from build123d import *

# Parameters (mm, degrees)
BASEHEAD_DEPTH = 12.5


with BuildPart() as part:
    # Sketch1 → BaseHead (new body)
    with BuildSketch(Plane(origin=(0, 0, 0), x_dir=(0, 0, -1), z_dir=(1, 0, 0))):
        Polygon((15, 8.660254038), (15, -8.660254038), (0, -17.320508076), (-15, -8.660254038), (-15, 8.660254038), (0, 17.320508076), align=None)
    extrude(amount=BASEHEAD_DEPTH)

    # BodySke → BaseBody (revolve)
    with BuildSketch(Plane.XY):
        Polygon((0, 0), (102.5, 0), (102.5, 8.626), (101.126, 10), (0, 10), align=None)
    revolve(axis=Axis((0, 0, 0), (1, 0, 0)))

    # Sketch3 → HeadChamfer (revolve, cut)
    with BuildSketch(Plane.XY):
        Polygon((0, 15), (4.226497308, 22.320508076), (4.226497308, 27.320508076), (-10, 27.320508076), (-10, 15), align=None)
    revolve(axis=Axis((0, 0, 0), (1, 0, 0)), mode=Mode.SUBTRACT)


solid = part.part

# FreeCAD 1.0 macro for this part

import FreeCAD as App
import Part
import Sketcher
from FreeCAD import Vector
Q = App.Units.Quantity


def add_polygon(sketch, points):
    """Adds a closed chain of lines whose ends are joined by coincident constraints."""
    first, n = sketch.GeometryCount, len(points)
    for a, b in zip(points, points[1:] + points[:1]):
        sketch.addGeometry(Part.LineSegment(App.Vector(*a, 0), App.Vector(*b, 0)), False)
    for i in range(n):
        sketch.addConstraint(Sketcher.Constraint("Coincident", first + i, 2, first + (i + 1) % n, 1))

doc = App.newDocument("Part")
body = doc.addObject("PartDesign::Body", "Body")

# Sketch on YZ plane
sketch1 = body.newObject("Sketcher::SketchObject", "Sketch")
sketch1.AttachmentSupport = (doc.getObject("YZ_Plane"), [""])
sketch1.MapMode = "FlatFace"
add_polygon(sketch1, [(-9, -15), (9, -15), (17, 0), (9, 15), (-9, 15), (-17, 0)])  # lines 0-5
sketch1.addConstraint(Sketcher.Constraint("Horizontal", 0))
sketch1.addConstraint(Sketcher.Constraint("Horizontal", 3))
sketch1.addConstraint(Sketcher.Constraint("Symmetric", 0, 2, 3, 2, -1, 1))
sketch1.addConstraint(Sketcher.Constraint("Symmetric", 1, 2, 4, 2, -1, 1))
sketch1.addConstraint(Sketcher.Constraint("PointOnObject", 1, 2, -1))
sketch1.addConstraint(Sketcher.Constraint("Parallel", 2, 5))
sketch1.addConstraint(Sketcher.Constraint("Vertical", 0, 2, 2, 2))
sketch1.addConstraint(Sketcher.Constraint("Angle", 1, Q("60 deg")))
sketch1.addConstraint(Sketcher.Constraint("DistanceY", 0, 2, -1, 1, 15.0))
sketch1.addConstraint(Sketcher.Constraint("DistanceX", 0, 1, 0, 2, 17.320508))
pad1 = body.newObject("PartDesign::Pad", "Pad")
pad1.Profile = sketch1
pad1.Length = 12.5

# Sketch on XY plane
sketch2 = body.newObject("Sketcher::SketchObject", "Sketch001")
sketch2.AttachmentSupport = (doc.getObject("XY_Plane"), [""])
sketch2.MapMode = "FlatFace"
add_polygon(sketch2, [(0, 0), (102.5, 0), (102.5, 8.6), (101.1, 10), (0, 10)])  # lines 0-4
sketch2.addConstraint(Sketcher.Constraint("Horizontal", 0))
sketch2.addConstraint(Sketcher.Constraint("Vertical", 1))
sketch2.addConstraint(Sketcher.Constraint("Horizontal", 3))
sketch2.addConstraint(Sketcher.Constraint("Vertical", 4))
sketch2.addConstraint(Sketcher.Constraint("Coincident", 4, 2, -1, 1))
sketch2.addConstraint(Sketcher.Constraint("DistanceY", 4, 2, 4, 1, 10.0))
sketch2.addConstraint(Sketcher.Constraint("Angle", 2, Q("135 deg")))
sketch2.addConstraint(Sketcher.Constraint("DistanceX", 0, 1, 0, 2, 102.5))
sketch2.addConstraint(Sketcher.Constraint("DistanceX", 3, 2, 3, 1, 101.126))
revolution = body.newObject("PartDesign::Revolution", "Revolution")
revolution.Profile = sketch2
revolution.ReferenceAxis = (sketch2, ["H_Axis"])
revolution.Angle = 360

# Sketch on XY plane
sketch3 = body.newObject("Sketcher::SketchObject", "Sketch002")
sketch3.AttachmentSupport = (doc.getObject("XY_Plane"), [""])
sketch3.MapMode = "FlatFace"
add_polygon(sketch3, [(0, 15), (4, 22), (4, 27), (-10, 27), (-10, 15)])  # lines 0-4
sketch3.addConstraint(Sketcher.Constraint("Vertical", 1))
sketch3.addConstraint(Sketcher.Constraint("Horizontal", 2))
sketch3.addConstraint(Sketcher.Constraint("Vertical", 3))
sketch3.addConstraint(Sketcher.Constraint("Horizontal", 4))
sketch3.addConstraint(Sketcher.Constraint("PointOnObject", 4, 2, -2))
sketch3.addConstraint(Sketcher.Constraint("DistanceX", 4, 1, 4, 2, 10.0))
sketch3.addConstraint(Sketcher.Constraint("DistanceY", 1, 1, 1, 2, 5.0))
sketch3.addConstraint(Sketcher.Constraint("Angle", 0, Q("60 deg")))
sketch3.addConstraint(Sketcher.Constraint("DistanceY", -1, 1, 3, 2, 15.0))
sketch3.addConstraint(Sketcher.Constraint("DistanceY", 3, 2, 3, 1, 12.320508))
groove = body.newObject("PartDesign::Groove", "Groove")
groove.Profile = sketch3
groove.ReferenceAxis = (sketch3, ["H_Axis"])
groove.Angle = 360

doc.recompute()
